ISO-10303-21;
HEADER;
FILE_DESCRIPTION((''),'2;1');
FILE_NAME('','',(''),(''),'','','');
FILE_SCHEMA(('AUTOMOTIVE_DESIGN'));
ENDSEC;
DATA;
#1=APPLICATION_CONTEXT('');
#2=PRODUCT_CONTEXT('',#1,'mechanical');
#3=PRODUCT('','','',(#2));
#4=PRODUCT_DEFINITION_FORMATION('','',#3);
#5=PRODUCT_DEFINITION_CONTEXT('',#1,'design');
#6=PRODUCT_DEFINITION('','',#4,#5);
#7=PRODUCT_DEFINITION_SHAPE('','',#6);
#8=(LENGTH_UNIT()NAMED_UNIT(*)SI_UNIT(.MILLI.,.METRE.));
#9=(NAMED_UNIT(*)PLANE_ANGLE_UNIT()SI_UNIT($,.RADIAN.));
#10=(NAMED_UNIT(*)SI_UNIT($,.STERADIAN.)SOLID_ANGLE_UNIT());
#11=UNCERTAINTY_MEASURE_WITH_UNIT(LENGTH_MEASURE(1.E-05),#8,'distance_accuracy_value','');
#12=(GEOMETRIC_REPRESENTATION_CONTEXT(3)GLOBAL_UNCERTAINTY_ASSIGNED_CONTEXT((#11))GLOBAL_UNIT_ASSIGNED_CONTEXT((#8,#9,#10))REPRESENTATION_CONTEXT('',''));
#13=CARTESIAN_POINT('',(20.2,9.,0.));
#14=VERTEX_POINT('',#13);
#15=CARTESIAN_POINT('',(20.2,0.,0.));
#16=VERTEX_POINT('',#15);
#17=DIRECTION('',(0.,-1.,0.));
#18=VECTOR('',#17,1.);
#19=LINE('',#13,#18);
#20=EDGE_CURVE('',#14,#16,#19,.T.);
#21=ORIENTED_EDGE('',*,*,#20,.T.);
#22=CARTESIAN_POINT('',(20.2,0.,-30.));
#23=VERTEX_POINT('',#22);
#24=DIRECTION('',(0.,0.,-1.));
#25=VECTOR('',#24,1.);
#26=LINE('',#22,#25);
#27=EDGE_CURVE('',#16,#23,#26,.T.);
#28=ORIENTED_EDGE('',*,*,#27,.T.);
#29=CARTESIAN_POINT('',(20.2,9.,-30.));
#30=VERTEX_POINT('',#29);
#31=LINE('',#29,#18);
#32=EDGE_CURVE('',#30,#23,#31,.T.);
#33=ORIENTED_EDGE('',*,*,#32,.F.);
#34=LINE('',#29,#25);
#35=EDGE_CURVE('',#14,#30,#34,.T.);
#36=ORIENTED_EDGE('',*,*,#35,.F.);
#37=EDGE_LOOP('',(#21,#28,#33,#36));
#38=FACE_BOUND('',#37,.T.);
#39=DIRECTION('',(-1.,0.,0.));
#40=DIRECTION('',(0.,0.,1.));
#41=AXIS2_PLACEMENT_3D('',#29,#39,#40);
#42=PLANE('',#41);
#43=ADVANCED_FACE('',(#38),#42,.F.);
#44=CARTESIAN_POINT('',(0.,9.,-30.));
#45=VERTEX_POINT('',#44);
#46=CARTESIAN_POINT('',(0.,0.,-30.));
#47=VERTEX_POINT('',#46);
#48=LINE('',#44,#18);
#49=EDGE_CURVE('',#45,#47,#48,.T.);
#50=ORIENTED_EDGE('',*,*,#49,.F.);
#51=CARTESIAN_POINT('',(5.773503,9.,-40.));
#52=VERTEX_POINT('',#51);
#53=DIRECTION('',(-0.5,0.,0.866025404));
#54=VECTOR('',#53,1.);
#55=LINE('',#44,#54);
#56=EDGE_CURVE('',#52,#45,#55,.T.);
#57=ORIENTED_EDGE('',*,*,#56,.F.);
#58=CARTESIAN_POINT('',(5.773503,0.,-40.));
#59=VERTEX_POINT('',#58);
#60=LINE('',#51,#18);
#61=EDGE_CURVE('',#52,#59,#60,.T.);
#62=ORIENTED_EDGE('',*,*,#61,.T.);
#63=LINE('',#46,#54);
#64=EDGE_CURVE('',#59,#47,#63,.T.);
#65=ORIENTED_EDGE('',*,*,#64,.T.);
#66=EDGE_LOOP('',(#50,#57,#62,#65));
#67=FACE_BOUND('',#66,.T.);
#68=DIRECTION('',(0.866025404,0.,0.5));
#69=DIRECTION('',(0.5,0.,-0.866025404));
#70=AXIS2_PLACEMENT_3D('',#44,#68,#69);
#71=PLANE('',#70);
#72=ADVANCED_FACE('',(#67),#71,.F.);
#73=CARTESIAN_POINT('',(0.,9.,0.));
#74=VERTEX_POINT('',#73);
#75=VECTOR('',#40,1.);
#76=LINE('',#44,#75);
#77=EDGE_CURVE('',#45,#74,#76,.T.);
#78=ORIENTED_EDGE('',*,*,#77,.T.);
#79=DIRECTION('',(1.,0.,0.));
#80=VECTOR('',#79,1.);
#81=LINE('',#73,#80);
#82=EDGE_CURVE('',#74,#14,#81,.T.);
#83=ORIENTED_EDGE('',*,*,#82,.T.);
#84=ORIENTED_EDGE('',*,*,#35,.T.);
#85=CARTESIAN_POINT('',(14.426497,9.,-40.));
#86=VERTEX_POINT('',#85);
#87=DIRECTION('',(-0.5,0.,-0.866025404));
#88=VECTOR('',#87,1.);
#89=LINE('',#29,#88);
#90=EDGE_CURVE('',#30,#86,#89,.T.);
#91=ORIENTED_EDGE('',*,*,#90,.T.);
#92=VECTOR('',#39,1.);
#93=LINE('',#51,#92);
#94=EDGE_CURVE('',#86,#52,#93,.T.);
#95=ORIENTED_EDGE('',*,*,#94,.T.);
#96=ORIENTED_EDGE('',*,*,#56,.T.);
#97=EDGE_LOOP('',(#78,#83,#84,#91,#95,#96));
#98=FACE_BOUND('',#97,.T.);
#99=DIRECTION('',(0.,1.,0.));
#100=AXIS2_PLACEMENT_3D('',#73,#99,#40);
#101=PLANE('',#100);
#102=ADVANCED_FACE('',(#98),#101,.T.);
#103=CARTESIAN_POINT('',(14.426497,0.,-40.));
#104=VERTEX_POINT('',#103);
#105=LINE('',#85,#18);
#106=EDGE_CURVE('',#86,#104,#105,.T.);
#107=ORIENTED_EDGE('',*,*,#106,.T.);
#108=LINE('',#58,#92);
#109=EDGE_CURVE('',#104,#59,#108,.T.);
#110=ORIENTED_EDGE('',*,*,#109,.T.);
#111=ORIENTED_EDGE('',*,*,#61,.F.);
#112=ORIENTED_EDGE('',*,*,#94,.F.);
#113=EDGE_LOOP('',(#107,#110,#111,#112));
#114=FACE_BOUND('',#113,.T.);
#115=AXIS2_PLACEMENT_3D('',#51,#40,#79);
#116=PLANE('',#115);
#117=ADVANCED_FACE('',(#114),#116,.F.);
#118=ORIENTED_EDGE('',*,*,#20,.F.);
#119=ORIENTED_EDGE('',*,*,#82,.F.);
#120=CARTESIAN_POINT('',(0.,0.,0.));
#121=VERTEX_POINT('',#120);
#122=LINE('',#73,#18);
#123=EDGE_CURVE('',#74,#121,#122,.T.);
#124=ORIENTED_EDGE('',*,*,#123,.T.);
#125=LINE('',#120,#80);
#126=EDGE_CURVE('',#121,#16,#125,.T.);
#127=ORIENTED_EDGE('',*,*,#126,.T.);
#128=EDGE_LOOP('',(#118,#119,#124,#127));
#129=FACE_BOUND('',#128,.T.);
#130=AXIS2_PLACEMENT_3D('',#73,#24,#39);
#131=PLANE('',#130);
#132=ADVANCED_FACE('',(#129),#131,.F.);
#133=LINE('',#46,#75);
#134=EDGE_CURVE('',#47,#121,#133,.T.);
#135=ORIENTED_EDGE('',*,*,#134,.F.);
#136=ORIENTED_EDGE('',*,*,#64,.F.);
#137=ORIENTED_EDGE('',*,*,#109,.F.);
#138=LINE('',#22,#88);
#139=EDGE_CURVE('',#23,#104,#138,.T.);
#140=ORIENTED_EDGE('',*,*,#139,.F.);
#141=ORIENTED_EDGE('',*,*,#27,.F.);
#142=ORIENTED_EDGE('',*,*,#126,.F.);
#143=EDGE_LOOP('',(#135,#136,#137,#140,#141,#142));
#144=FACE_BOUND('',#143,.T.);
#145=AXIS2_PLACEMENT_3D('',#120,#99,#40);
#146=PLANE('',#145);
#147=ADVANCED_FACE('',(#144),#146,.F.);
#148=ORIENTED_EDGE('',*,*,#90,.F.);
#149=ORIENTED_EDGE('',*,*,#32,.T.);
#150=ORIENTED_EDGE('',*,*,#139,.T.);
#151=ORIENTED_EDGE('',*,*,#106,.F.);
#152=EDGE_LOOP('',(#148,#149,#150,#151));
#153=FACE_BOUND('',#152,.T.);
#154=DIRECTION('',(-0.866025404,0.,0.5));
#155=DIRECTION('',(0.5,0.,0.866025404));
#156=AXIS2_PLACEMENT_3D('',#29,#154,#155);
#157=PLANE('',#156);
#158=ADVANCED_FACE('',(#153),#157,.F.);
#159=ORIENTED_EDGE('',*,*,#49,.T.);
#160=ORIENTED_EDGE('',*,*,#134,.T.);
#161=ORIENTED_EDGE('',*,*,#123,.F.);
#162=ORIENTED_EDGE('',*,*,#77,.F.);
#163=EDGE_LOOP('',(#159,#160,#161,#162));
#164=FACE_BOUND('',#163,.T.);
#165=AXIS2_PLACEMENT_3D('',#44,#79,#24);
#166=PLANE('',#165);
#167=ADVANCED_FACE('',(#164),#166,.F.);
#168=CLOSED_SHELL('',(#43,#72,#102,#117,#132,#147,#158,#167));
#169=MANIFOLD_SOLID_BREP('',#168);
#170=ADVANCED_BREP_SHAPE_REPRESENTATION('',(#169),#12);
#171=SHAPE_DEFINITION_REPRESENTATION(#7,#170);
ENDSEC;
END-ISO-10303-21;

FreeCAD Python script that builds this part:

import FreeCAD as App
import Part
import Sketcher
Q = App.Units.Quantity

doc = App.newDocument("Part")
body = doc.addObject("PartDesign::Body", "Body")

# Sketch on XZ plane
sketch1 = body.newObject("Sketcher::SketchObject", "Sketch")
sketch1.AttachmentSupport = (doc.getObject("XZ_Plane"), [""])
sketch1.MapMode = "FlatFace"
sketch1.addGeometry([
    Part.LineSegment(App.Vector(0, -30, 0), App.Vector(0, 0, 0)),  # 0
    Part.LineSegment(App.Vector(0, 0, 0), App.Vector(20.2, 0, 0)),  # 1
    Part.LineSegment(App.Vector(20.2, 0, 0), App.Vector(20.2, -30, 0)),  # 2
    Part.LineSegment(App.Vector(20.2, -30, 0), App.Vector(14.426497, -40, 0)),  # 3
    Part.LineSegment(App.Vector(14.426497, -40, 0), App.Vector(5.773503, -40, 0)),  # 4
    Part.LineSegment(App.Vector(5.773503, -40, 0), App.Vector(0, -30, 0)),  # 5
], False)
sketch1.addConstraint([
    Sketcher.Constraint("Coincident", 0, 2, 1, 1),
    Sketcher.Constraint("Coincident", 1, 2, 2, 1),
    Sketcher.Constraint("Coincident", 2, 2, 3, 1),
    Sketcher.Constraint("Coincident", 3, 2, 4, 1),
    Sketcher.Constraint("Coincident", 4, 2, 5, 1),
    Sketcher.Constraint("Coincident", 5, 2, 0, 1),
    Sketcher.Constraint("Vertical", 0),
    Sketcher.Constraint("Horizontal", 1),
    Sketcher.Constraint("Vertical", 2),
    Sketcher.Constraint("Horizontal", 4),
    Sketcher.Constraint("Coincident", 0, 2, -1, 1),
    Sketcher.Constraint("Horizontal", 2, 2, 5, 2),
    Sketcher.Constraint("Equal", 3, 5),
    Sketcher.Constraint("DistanceY", 0, 1, 0, 2, 30.0),
    Sketcher.Constraint("Angle", 3, Q("-120 deg")),
    Sketcher.Constraint("DistanceX", 1, 1, 1, 2, 20.2),
    Sketcher.Constraint("DistanceY", 3, 2, -1, 1, 40.0),
])
pad1 = body.newObject("PartDesign::Pad", "Pad")
pad1.Profile = sketch1
pad1.Length = 9
pad1.Reversed = True

doc.recompute()
